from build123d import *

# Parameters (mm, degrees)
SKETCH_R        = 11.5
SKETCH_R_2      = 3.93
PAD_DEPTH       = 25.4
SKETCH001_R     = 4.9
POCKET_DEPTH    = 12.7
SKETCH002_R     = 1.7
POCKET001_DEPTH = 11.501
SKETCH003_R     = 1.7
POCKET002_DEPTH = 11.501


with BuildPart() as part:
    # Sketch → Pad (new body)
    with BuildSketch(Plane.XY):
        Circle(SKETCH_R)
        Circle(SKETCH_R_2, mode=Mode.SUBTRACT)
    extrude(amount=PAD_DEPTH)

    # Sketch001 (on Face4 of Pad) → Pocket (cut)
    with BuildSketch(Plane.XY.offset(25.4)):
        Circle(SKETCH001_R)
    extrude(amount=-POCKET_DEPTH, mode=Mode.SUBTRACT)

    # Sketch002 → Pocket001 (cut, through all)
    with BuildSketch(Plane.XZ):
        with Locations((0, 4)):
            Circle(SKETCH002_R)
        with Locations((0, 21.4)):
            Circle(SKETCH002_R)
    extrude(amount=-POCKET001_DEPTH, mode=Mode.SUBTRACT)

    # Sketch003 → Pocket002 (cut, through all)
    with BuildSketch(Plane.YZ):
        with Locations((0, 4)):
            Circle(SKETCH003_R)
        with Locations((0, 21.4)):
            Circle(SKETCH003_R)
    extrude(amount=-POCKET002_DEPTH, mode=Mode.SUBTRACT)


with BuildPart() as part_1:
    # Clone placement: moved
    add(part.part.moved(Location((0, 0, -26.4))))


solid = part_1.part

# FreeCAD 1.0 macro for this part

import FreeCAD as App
import Part
import Sketcher
from FreeCAD import Vector
Q = App.Units.Quantity

doc = App.newDocument("Part")
body = doc.addObject("PartDesign::Body", "Body")

# Sketch on XY plane
sketch1 = doc.addObject("Sketcher::SketchObject", "Sketch")
body.addObject(sketch1)
sketch1.AttachmentSupport = (doc.XY_Plane, [""])
sketch1.MapMode = "FlatFace"
sketch1.addGeometry(Part.Circle(Vector(0, 0, 0), Vector(0, 0, 1), 11.5), False)
sketch1.addGeometry(Part.Circle(Vector(0, 0, 0), Vector(0, 0, 1), 3.9), False)
sketch1.addConstraint(Sketcher.Constraint("Coincident", 0, 3, -1, 1))
sketch1.addConstraint(Sketcher.Constraint("Coincident", 1, 3, -1, 1))
sketch1.addConstraint(Sketcher.Constraint("Diameter", 0, Q("23 mm")))
sketch1.addConstraint(Sketcher.Constraint("Diameter", 1, Q("7.86 mm")))
pad1 = doc.addObject("PartDesign::Pad", "Pad")
body.addObject(pad1)
pad1.Profile = sketch1
pad1.Length = 25.4

# Sketch on XY plane
sketch2 = doc.addObject("Sketcher::SketchObject", "Sketch001")
body.addObject(sketch2)
sketch2.AttachmentSupport = (doc.XY_Plane, [""])
sketch2.MapMode = "FlatFace"
sketch2.AttachmentOffset = App.Placement(Vector(0, 0, 25.4), App.Rotation())
sketch2.addGeometry(Part.Circle(Vector(0, 0, 0), Vector(0, 0, 1), 4.9), False)
sketch2.addConstraint(Sketcher.Constraint("Coincident", 0, 3, -1, 1))
sketch2.addConstraint(Sketcher.Constraint("Diameter", 0, Q("9.8 mm")))
pocket1 = doc.addObject("PartDesign::Pocket", "Pocket")
body.addObject(pocket1)
pocket1.Profile = sketch2
pocket1.Length = 12.7

# Sketch on XZ plane
sketch3 = doc.addObject("Sketcher::SketchObject", "Sketch002")
body.addObject(sketch3)
sketch3.AttachmentSupport = (doc.XZ_Plane, [""])
sketch3.MapMode = "FlatFace"
sketch3.addGeometry(Part.Circle(Vector(0, 4, 0), Vector(0, 0, 1), 1.7), False)
sketch3.addGeometry(Part.Circle(Vector(0, 21.4, 0), Vector(0, 0, 1), 1.7), False)
sketch3.addConstraint(Sketcher.Constraint("Equal", 0, 1))
sketch3.addConstraint(Sketcher.Constraint("PointOnObject", 0, 3, -2))
sketch3.addConstraint(Sketcher.Constraint("PointOnObject", 1, 3, -2))
sketch3.addConstraint(Sketcher.Constraint("Diameter", 0, Q("3.4 mm")))
sketch3.addConstraint(Sketcher.Constraint("DistanceY", -1, 1, 0, 3, Q("4 mm")))
sketch3.addConstraint(Sketcher.Constraint("DistanceY", -1, 1, 1, 3, Q("21.4 mm")))
pocket2 = doc.addObject("PartDesign::Pocket", "Pocket001")
body.addObject(pocket2)
pocket2.Profile = sketch3
pocket2.Type = "ThroughAll"

# Sketch on YZ plane
sketch4 = doc.addObject("Sketcher::SketchObject", "Sketch003")
body.addObject(sketch4)
sketch4.AttachmentSupport = (doc.YZ_Plane, [""])
sketch4.MapMode = "FlatFace"
sketch4.addGeometry(Part.Circle(Vector(0, 4, 0), Vector(0, 0, 1), 1.7), False)
sketch4.addGeometry(Part.Circle(Vector(0, 21.4, 0), Vector(0, 0, 1), 1.7), False)
sketch4.addConstraint(Sketcher.Constraint("Equal", 0, 1))
sketch4.addConstraint(Sketcher.Constraint("PointOnObject", 0, 3, -2))
sketch4.addConstraint(Sketcher.Constraint("PointOnObject", 1, 3, -2))
sketch4.addConstraint(Sketcher.Constraint("Diameter", 0, Q("3.4 mm")))
sketch4.addConstraint(Sketcher.Constraint("DistanceY", -1, 1, 0, 3, Q("4 mm")))
sketch4.addConstraint(Sketcher.Constraint("DistanceY", -1, 1, 1, 3, Q("21.4 mm")))
pocket3 = doc.addObject("PartDesign::Pocket", "Pocket002")
body.addObject(pocket3)
pocket3.Profile = sketch4
pocket3.Type = "ThroughAll"
body2 = doc.addObject("PartDesign::Body", "Body001")
doc.recompute()

body.Placement = App.Placement(Vector(0, 0, -26.4), App.Rotation(Vector(0, 0, 1), 0))
boolean = doc.addObject("PartDesign::Boolean", "Boolean")
body2.addObject(boolean)
boolean.Type = "Fuse"
boolean.addObjects([body])

doc.recompute()
